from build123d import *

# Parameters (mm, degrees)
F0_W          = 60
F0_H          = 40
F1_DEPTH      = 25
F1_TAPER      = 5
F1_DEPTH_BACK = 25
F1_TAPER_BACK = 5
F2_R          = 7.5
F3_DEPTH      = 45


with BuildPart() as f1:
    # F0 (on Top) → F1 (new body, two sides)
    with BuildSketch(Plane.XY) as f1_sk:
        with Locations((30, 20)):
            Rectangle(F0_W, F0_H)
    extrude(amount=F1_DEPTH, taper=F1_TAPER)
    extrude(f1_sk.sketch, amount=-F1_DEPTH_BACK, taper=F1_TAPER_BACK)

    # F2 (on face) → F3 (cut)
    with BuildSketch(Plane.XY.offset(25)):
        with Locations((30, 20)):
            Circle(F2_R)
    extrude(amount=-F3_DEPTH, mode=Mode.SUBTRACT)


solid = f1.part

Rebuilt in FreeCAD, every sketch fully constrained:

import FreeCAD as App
import Part
import Sketcher

V = App.Vector
Q = App.Units.Quantity

doc = App.newDocument("Part")
body = doc.addObject("PartDesign::Body", "Body")

# Sketch on XY plane
sketch1 = body.newObject("Sketcher::SketchObject", "Sketch")
sketch1.AttachmentSupport = (doc.getObject("XY_Plane"), [""])
sketch1.MapMode = "FlatFace"
sketch1.addGeometry([
    Part.LineSegment(V(0, 40, 0), V(0, 0, 0)),
    Part.LineSegment(V(0, 0, 0), V(60, 0, 0)),
    Part.LineSegment(V(60, 0, 0), V(60, 40, 0)),
    Part.LineSegment(V(60, 40, 0), V(0, 40, 0)),
], False)
sketch1.addConstraint([
    Sketcher.Constraint("Coincident", 0, 2, 1, 1),
    Sketcher.Constraint("Coincident", 1, 2, 2, 1),
    Sketcher.Constraint("Coincident", 2, 2, 3, 1),
    Sketcher.Constraint("Coincident", 3, 2, 0, 1),
    Sketcher.Constraint("Vertical", 0),
    Sketcher.Constraint("Horizontal", 1),
    Sketcher.Constraint("Vertical", 2),
    Sketcher.Constraint("Horizontal", 3),
    Sketcher.Constraint("Coincident", 0, 2, -1, 1),
    Sketcher.Constraint("DistanceX", 1, 1, 1, 2, Q("60 mm")),
    Sketcher.Constraint("DistanceY", 0, 2, 0, 1, Q("40 mm")),
])
pad1 = body.newObject("PartDesign::Pad", "Pad")
pad1.Profile = sketch1
pad1.Length = 25
pad1.TaperAngle = -5
pad2 = body.newObject("PartDesign::Pad", "Pad001")
pad2.Profile = sketch1
pad2.Length = 25
pad2.Reversed = True
pad2.TaperAngle = -5

# Sketch on XY plane
sketch2 = body.newObject("Sketcher::SketchObject", "Sketch001")
sketch2.AttachmentSupport = (doc.getObject("XY_Plane"), [""])
sketch2.MapMode = "FlatFace"
sketch2.AttachmentOffset = App.Placement(V(0, 0, 25), App.Rotation())
sketch2.addGeometry(Part.Circle(V(30, 20, 0), V(0, 0, 1), 8), False)
sketch2.addConstraint([
    Sketcher.Constraint("Diameter", 0, Q("15 mm")),
    Sketcher.Constraint("DistanceX", -1, 1, 0, 3, Q("30 mm")),
    Sketcher.Constraint("DistanceY", -1, 1, 0, 3, Q("20 mm")),
])
pocket1 = body.newObject("PartDesign::Pocket", "Pocket")
pocket1.Profile = sketch2
pocket1.Length = 45

doc.recompute()
